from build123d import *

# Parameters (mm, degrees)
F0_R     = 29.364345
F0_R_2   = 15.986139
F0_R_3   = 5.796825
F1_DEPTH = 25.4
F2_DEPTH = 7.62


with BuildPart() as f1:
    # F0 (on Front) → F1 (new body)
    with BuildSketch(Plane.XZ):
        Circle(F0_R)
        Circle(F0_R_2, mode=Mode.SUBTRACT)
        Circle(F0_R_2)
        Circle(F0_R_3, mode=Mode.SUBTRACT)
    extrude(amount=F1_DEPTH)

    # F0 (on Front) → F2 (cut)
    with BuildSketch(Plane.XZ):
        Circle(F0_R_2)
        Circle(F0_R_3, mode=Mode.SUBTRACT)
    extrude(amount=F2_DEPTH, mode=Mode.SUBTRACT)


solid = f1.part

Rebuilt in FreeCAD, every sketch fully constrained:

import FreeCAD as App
import Part
import Sketcher

V = App.Vector
Q = App.Units.Quantity

doc = App.newDocument("Part")
body = doc.addObject("PartDesign::Body", "Body")

sketch1 = body.newObject("Sketcher::SketchObject", "Sketch")
sketch1.AttachmentSupport = (doc.getObject("XZ_Plane"), [""])
sketch1.MapMode = "FlatFace"
sketch1.addGeometry(Part.Circle(V(0, 0, 0), V(0, 0, 1), 29), False)
sketch1.addGeometry(Part.Circle(V(0, 0, 0), V(0, 0, 1), 6), False)
sketch1.addConstraint(Sketcher.Constraint("Coincident", 0, 3, -1, 1))
sketch1.addConstraint(Sketcher.Constraint("Coincident", 1, 3, -1, 1))
sketch1.addConstraint(Sketcher.Constraint("Diameter", 0, Q("58.72869 mm")))
sketch1.addConstraint(Sketcher.Constraint("Diameter", 1, Q("11.59365 mm")))
pad1 = body.newObject("PartDesign::Pad", "Pad")
pad1.Profile = sketch1
pad1.Length = Q("1 in")

sketch2 = body.newObject("Sketcher::SketchObject", "Sketch001")
sketch2.AttachmentSupport = (doc.getObject("XZ_Plane"), [""])
sketch2.MapMode = "FlatFace"
sketch2.addGeometry(Part.Circle(V(0, 0, 0), V(0, 0, 1), 16), False)
sketch2.addGeometry(Part.Circle(V(0, 0, 0), V(0, 0, 1), 6), False)
sketch2.addConstraint(Sketcher.Constraint("Coincident", 0, 3, -1, 1))
sketch2.addConstraint(Sketcher.Constraint("Coincident", 1, 3, -1, 1))
sketch2.addConstraint(Sketcher.Constraint("Diameter", 1, Q("11.59365 mm")))
sketch2.addConstraint(Sketcher.Constraint("Diameter", 0, Q("31.972278 mm")))
pocket1 = body.newObject("PartDesign::Pocket", "Pocket")
pocket1.Profile = sketch2
pocket1.Length = Q("0.3 in")
pocket1.Reversed = True

doc.recompute()
